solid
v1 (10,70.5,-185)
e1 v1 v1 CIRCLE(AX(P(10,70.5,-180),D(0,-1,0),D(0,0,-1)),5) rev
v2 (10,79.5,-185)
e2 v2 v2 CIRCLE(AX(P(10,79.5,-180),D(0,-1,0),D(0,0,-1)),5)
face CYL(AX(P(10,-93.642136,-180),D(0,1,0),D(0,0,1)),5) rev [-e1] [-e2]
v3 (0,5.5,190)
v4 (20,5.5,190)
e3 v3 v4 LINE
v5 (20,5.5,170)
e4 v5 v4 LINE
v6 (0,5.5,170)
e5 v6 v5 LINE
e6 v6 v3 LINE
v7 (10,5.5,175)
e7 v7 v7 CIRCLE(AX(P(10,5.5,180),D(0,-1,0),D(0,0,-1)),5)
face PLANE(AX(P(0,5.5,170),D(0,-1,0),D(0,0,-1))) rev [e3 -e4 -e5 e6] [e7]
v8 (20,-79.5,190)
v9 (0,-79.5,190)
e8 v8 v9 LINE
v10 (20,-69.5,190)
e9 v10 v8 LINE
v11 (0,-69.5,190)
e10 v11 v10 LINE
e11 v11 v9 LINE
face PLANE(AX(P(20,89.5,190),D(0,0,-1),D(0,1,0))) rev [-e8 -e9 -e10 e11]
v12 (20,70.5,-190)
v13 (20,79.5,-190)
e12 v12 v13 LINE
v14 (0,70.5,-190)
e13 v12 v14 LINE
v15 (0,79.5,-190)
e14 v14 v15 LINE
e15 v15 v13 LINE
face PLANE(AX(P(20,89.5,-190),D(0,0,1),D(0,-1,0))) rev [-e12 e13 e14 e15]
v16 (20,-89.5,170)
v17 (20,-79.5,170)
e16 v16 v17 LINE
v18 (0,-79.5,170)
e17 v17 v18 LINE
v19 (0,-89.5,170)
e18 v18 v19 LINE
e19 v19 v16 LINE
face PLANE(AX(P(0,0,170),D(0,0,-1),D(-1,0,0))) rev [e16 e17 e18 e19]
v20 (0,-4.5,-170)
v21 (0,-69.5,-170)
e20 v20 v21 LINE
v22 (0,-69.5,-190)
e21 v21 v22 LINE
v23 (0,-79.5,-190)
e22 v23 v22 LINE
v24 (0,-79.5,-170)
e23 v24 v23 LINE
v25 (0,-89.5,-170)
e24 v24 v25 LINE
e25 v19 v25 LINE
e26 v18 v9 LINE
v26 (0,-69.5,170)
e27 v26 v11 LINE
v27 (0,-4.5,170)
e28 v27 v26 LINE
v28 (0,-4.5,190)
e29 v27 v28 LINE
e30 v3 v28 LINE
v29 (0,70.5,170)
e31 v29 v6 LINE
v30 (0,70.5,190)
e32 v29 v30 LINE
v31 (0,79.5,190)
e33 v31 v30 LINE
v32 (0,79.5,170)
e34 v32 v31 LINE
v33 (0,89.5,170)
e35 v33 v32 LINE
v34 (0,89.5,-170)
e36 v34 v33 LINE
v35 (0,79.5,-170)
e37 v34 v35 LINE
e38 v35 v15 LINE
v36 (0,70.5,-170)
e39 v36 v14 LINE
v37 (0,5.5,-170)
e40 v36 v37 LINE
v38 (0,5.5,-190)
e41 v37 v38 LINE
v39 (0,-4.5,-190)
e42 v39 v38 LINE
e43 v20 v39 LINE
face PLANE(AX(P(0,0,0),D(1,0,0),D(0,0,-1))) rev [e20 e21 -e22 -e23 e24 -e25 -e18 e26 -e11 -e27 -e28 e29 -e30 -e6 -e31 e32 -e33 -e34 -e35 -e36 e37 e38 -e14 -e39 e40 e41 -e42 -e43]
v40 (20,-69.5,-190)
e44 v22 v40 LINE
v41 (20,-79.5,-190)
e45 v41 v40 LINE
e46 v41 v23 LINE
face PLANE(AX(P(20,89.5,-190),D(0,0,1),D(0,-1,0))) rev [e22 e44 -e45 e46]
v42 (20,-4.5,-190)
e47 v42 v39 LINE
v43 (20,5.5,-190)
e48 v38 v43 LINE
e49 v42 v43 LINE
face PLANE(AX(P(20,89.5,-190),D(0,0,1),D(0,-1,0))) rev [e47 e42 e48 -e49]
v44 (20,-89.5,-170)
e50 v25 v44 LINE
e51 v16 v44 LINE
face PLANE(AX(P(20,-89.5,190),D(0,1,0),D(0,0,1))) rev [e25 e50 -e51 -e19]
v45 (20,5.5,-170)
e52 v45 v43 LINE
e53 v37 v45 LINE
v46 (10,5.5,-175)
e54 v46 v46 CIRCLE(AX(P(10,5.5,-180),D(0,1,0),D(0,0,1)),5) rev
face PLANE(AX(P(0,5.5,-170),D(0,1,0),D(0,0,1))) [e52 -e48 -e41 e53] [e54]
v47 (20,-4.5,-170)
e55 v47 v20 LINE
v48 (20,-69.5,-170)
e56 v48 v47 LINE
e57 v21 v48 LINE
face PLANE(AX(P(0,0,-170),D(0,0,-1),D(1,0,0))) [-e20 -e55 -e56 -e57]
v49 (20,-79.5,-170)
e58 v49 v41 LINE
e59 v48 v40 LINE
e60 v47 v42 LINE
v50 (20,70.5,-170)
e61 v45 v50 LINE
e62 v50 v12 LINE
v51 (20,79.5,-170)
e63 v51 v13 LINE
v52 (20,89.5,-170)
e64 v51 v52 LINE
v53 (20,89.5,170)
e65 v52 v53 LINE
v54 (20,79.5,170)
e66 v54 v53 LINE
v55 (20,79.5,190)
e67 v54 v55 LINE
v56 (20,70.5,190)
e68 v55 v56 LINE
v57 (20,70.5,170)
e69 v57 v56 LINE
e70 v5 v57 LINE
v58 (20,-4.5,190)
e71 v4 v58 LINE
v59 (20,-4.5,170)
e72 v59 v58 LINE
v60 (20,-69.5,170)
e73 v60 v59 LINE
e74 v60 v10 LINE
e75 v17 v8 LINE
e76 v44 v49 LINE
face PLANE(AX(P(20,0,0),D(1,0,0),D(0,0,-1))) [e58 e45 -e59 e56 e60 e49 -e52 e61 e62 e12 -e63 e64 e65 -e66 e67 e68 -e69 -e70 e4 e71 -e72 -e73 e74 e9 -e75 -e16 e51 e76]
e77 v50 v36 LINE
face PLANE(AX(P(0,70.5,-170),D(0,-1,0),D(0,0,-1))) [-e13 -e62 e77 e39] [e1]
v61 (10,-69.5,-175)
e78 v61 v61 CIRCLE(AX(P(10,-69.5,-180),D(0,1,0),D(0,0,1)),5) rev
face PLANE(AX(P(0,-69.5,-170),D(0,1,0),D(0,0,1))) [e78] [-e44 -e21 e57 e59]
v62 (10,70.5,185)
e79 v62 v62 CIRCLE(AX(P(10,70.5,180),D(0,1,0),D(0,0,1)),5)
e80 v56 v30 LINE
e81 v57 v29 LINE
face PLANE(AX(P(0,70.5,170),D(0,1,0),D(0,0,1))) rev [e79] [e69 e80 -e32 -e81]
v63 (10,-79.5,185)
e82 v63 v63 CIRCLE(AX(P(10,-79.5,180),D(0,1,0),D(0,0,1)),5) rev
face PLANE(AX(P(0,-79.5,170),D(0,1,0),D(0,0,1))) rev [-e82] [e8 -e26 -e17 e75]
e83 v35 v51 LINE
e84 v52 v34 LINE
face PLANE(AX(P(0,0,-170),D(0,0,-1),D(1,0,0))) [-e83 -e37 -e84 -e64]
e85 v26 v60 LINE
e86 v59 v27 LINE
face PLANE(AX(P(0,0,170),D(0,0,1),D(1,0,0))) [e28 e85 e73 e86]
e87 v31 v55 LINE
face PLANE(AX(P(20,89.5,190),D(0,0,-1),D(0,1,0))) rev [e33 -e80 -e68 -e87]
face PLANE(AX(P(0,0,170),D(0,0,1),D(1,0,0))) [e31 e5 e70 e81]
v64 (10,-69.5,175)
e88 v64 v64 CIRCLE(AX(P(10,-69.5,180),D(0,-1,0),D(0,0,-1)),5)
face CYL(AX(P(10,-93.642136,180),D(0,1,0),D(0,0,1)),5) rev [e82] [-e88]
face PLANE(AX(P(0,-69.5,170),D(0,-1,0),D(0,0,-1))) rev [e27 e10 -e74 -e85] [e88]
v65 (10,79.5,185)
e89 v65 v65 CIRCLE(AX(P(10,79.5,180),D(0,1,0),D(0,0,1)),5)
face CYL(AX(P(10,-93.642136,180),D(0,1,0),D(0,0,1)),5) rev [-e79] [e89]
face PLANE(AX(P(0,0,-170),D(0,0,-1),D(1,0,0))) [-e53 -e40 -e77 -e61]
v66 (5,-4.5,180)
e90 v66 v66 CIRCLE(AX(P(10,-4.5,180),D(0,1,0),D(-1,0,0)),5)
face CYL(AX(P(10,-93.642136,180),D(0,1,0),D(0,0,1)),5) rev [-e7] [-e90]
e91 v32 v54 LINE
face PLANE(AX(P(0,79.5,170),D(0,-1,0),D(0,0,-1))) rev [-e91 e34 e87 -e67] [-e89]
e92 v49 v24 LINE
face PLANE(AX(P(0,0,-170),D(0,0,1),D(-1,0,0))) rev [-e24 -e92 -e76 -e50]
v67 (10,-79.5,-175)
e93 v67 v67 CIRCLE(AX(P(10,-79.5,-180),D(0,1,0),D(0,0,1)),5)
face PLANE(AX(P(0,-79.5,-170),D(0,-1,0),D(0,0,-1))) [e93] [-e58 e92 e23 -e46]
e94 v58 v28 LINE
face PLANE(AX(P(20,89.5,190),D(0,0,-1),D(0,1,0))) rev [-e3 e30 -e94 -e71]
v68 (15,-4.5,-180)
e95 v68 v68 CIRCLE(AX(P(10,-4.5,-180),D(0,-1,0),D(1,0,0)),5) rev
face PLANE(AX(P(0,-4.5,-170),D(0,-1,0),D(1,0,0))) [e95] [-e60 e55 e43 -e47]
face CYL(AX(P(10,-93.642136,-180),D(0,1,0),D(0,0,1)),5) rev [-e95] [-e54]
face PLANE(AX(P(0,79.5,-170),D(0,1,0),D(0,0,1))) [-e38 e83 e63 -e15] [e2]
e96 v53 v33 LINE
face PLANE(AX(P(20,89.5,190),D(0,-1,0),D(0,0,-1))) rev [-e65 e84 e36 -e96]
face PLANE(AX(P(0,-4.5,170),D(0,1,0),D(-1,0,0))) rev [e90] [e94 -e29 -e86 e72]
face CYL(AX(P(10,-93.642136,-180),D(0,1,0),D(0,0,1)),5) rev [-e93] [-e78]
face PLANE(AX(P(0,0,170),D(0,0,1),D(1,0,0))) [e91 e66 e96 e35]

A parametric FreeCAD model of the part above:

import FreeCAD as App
import Part
import Sketcher


def add_polygon(sketch, points):
    """Adds a closed chain of lines whose ends are joined by coincident constraints."""
    first, n = sketch.GeometryCount, len(points)
    for a, b in zip(points, points[1:] + points[:1]):
        sketch.addGeometry(Part.LineSegment(App.Vector(*a, 0), App.Vector(*b, 0)), False)
    for i in range(n):
        sketch.addConstraint(Sketcher.Constraint("Coincident", first + i, 2, first + (i + 1) % n, 1))

doc = App.newDocument("Part")
body = doc.addObject("PartDesign::Body", "Body")

sketch1 = body.newObject("Sketcher::SketchObject", "Sketch")
sketch1.AttachmentSupport = (doc.getObject("YZ_Plane"), [""])
sketch1.MapMode = "FlatFace"
add_polygon(sketch1, [(90, 190), (-90, 190), (-90, -190), (90, -190)])
sketch1.addConstraint([
    Sketcher.Constraint("Horizontal", 0),
    Sketcher.Constraint("Vertical", 1),
    Sketcher.Constraint("Horizontal", 2),
    Sketcher.Constraint("Vertical", 3),
    Sketcher.Constraint("Symmetric", 0, 2, 2, 2, -1, 1),
    Sketcher.Constraint("DistanceX", 0, 2, 0, 1, 179.0),
    Sketcher.Constraint("DistanceY", 1, 2, 1, 1, 380.0),
])
pad1 = body.newObject("PartDesign::Pad", "Pad")
pad1.Profile = sketch1
pad1.Length = 20

sketch2 = body.newObject("Sketcher::SketchObject", "Sketch001")
sketch2.AttachmentSupport = (doc.getObject("XY_Plane"), [""])
sketch2.MapMode = "FlatFace"
sketch2.AttachmentOffset = App.Placement(App.Vector(0, 0, 190), App.Rotation())
add_polygon(sketch2, [(0, 70), (0, 6), (20, 6), (20, 70)])
add_polygon(sketch2, [(0, 90), (0, 80), (20, 80), (20, 90)])
add_polygon(sketch2, [(0, -80), (0, -90), (20, -90), (20, -80)])
add_polygon(sketch2, [(0, -4), (0, -70), (20, -70), (20, -4)])
sketch2.addConstraint([
    Sketcher.Constraint("Vertical", 0),
    Sketcher.Constraint("Horizontal", 1),
    Sketcher.Constraint("Vertical", 2),
    Sketcher.Constraint("Horizontal", 3),
    Sketcher.Constraint("Vertical", 4),
    Sketcher.Constraint("Horizontal", 5),
    Sketcher.Constraint("Vertical", 6),
    Sketcher.Constraint("Horizontal", 7),
    Sketcher.Constraint("Vertical", 8),
    Sketcher.Constraint("Horizontal", 9),
    Sketcher.Constraint("Vertical", 10),
    Sketcher.Constraint("Horizontal", 11),
    Sketcher.Constraint("Vertical", 12),
    Sketcher.Constraint("Horizontal", 13),
    Sketcher.Constraint("Vertical", 14),
    Sketcher.Constraint("Horizontal", 15),
    Sketcher.Constraint("Symmetric", 7, 2, 8, 2, -1, 1),
    Sketcher.Constraint("Symmetric", 5, 2, 10, 2, -1),
    Sketcher.Constraint("PointOnObject", 0, 2, -2),
    Sketcher.Constraint("PointOnObject", 4, 2, -2),
    Sketcher.Constraint("PointOnObject", 12, 2, -2),
    Sketcher.Constraint("Vertical", 2, 2, 5, 2),
    Sketcher.Constraint("Vertical", 10, 2, 13, 2),
    Sketcher.Constraint("Equal", 2, 12),
    Sketcher.Constraint("DistanceX", 1, 1, 1, 2, 20.0),
    Sketcher.Constraint("DistanceY", 0, 2, 0, 1, 65.0),
    Sketcher.Constraint("DistanceY", 4, 2, 4, 1, 10.0),
    Sketcher.Constraint("DistanceY", 3, 2, 4, 2, 9.0),
    Sketcher.Constraint("DistanceY", 8, 2, 0, 2, 95.0),
    Sketcher.Constraint("DistanceY", 11, 2, 12, 2, 10.0),
])
pocket1 = body.newObject("PartDesign::Pocket", "Pocket")
pocket1.Profile = sketch2
pocket1.Length = 20

sketch3 = body.newObject("Sketcher::SketchObject", "Sketch002")
sketch3.AttachmentSupport = (doc.getObject("XZ_Plane"), [""])
sketch3.MapMode = "FlatFace"
sketch3.AttachmentOffset = App.Placement(App.Vector(0, 0, -79.5), App.Rotation())
sketch3.addGeometry(Part.Circle(App.Vector(10, 180, 0), App.Vector(0, 0, 1), 5), False)
sketch3.addConstraint([
    Sketcher.Constraint("Diameter", 0, 10.0),
    Sketcher.Constraint("DistanceX", -1, 1, 0, 3, 10.0),
    Sketcher.Constraint("DistanceY", -1, 1, 0, 3, 180.0),
])
pocket2 = body.newObject("PartDesign::Pocket", "Pocket001")
pocket2.Profile = sketch3
pocket2.Length = 159
pocket2.Reversed = True
doc.recompute()

mirrored = body.newObject("PartDesign::Mirrored", "Mirrored")
mirrored.Originals = [pocket1, pocket2]
mirrored.MirrorPlane = (doc.getObject("XY_Plane"), [""])
body.Tip = mirrored

doc.recompute()
